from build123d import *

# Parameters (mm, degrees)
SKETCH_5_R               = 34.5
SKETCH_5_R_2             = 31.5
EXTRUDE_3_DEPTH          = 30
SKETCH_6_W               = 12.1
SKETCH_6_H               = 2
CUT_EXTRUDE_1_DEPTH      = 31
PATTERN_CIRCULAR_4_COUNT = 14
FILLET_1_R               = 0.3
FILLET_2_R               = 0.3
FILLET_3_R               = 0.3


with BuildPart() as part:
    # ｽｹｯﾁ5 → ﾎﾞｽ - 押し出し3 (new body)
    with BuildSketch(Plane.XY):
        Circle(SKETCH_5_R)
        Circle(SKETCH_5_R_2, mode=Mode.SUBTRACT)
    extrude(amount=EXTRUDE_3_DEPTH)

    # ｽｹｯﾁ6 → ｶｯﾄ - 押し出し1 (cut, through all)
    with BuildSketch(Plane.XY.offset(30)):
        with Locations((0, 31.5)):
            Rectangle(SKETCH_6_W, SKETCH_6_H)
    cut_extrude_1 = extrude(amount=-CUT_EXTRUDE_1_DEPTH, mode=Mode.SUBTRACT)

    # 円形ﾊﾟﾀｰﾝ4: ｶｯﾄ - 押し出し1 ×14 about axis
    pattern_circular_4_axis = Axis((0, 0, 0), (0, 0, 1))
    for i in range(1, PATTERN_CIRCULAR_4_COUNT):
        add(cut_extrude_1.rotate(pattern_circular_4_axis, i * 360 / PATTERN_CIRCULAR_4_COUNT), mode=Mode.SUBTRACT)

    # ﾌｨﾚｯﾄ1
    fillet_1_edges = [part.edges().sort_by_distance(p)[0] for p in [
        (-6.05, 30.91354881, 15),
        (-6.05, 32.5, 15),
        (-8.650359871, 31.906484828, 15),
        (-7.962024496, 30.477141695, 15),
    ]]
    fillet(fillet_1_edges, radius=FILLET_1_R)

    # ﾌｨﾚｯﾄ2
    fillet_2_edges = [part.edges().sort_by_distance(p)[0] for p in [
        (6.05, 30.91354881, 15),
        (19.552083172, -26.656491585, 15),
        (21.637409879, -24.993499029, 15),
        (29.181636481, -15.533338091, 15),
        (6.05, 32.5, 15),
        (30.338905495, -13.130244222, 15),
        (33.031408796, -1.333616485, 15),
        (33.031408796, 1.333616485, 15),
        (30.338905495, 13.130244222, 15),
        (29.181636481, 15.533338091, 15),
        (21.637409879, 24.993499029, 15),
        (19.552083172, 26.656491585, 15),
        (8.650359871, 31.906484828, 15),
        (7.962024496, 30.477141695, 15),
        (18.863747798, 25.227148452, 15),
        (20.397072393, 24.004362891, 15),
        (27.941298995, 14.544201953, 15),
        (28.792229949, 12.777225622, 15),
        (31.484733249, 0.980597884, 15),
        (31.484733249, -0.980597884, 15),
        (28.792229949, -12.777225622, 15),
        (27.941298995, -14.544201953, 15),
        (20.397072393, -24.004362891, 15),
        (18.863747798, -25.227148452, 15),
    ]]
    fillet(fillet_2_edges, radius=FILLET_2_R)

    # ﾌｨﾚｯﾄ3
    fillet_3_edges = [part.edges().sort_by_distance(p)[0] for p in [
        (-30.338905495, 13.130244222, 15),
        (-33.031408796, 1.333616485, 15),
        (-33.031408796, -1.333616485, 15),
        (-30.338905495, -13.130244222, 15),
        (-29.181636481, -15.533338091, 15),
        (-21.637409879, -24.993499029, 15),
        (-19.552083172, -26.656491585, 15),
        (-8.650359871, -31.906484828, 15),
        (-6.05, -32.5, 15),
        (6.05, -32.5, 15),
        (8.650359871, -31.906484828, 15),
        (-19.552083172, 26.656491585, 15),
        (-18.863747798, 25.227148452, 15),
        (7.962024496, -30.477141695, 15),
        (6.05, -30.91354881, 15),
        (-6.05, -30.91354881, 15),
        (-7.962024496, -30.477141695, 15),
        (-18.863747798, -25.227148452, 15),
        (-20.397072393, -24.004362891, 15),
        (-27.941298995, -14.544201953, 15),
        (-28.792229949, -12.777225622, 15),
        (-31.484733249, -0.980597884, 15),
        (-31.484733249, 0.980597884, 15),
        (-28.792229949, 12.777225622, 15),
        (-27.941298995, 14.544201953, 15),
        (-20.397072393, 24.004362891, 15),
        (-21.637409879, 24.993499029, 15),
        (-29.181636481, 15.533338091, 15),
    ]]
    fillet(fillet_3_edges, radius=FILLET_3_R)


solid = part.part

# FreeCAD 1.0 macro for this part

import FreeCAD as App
import Part
import Sketcher
from FreeCAD import Vector


def edges_at(feature, points):
    """Names of the edges that pass closest to the given points."""
    edges = feature.Shape.Edges
    near = lambda p: min(range(len(edges)), key=lambda i: edges[i].distToShape(Part.Vertex(*p))[0])
    return sorted({f"Edge{near(p) + 1}" for p in points})

doc = App.newDocument("Part")
body = doc.addObject("PartDesign::Body", "Body")

sketch1 = doc.addObject("Sketcher::SketchObject", "Sketch")
body.addObject(sketch1)
sketch1.AttachmentSupport = (doc.XY_Plane, [""])
sketch1.MapMode = "FlatFace"
sketch1.addGeometry([
    Part.Circle(Vector(0, 0, 0), Vector(0, 0, 1), 34.5),
    Part.Circle(Vector(0, 0, 0), Vector(0, 0, 1), 31.5),
], False)
sketch1.addConstraint([
    Sketcher.Constraint("Coincident", 0, 3, -1, 1),
    Sketcher.Constraint("Coincident", 1, 3, -1, 1),
    Sketcher.Constraint("Diameter", 0, 69.0),
    Sketcher.Constraint("Diameter", 1, 63.0),
])
pad1 = doc.addObject("PartDesign::Pad", "Pad")
body.addObject(pad1)
pad1.Profile = sketch1
pad1.Length = 30

sketch2 = doc.addObject("Sketcher::SketchObject", "Sketch001")
body.addObject(sketch2)
sketch2.AttachmentSupport = (doc.XY_Plane, [""])
sketch2.MapMode = "FlatFace"
sketch2.AttachmentOffset = App.Placement(Vector(0, 0, 30), App.Rotation())
sketch2.addGeometry([
    Part.LineSegment(Vector(-6.05, 32.5, 0), Vector(-6.05, 30.5, 0)),
    Part.LineSegment(Vector(-6.05, 30.5, 0), Vector(6.05, 30.5, 0)),
    Part.LineSegment(Vector(6.05, 30.5, 0), Vector(6.05, 32.5, 0)),
    Part.LineSegment(Vector(6.05, 32.5, 0), Vector(-6.05, 32.5, 0)),
], False)
sketch2.addConstraint([
    Sketcher.Constraint("Coincident", 0, 2, 1, 1),
    Sketcher.Constraint("Coincident", 1, 2, 2, 1),
    Sketcher.Constraint("Coincident", 2, 2, 3, 1),
    Sketcher.Constraint("Coincident", 3, 2, 0, 1),
    Sketcher.Constraint("Vertical", 0),
    Sketcher.Constraint("Horizontal", 1),
    Sketcher.Constraint("Vertical", 2),
    Sketcher.Constraint("Horizontal", 3),
    Sketcher.Constraint("DistanceY", 0, 2, 0, 1, 2.0),
    Sketcher.Constraint("DistanceX", 1, 1, 1, 2, 12.1),
    Sketcher.Constraint("DistanceY", -1, 1, 0, 2, 30.5),
    Sketcher.Constraint("DistanceX", 0, 2, -1, 1, 6.05),
])
pocket1 = doc.addObject("PartDesign::Pocket", "Pocket")
body.addObject(pocket1)
pocket1.Profile = sketch2
pocket1.Type = "ThroughAll"
doc.recompute()

polarpattern = doc.addObject("PartDesign::PolarPattern", "PolarPattern")
body.addObject(polarpattern)
polarpattern.Originals = [pocket1]
polarpattern.Axis = (doc.Z_Axis, [""])
polarpattern.Angle = 360
polarpattern.Occurrences = 14
body.Tip = polarpattern
doc.recompute()

fillet = doc.addObject("PartDesign::Fillet", "Fillet")
body.addObject(fillet)
fillet.Base = (polarpattern, edges_at(polarpattern, [
    (-6.05, 30.914, 15),
    (-6.05, 32.5, 15),
    (-8.65, 31.906, 15),
    (-7.962, 30.477, 15),
]))
fillet.Radius = 0.3
doc.recompute()

fillet2 = doc.addObject("PartDesign::Fillet", "Fillet001")
body.addObject(fillet2)
fillet2.Base = (fillet, edges_at(fillet, [
    (6.05, 30.914, 15),
    (19.552, -26.656, 15),
    (21.637, -24.993, 15),
    (29.182, -15.533, 15),
    (6.05, 32.5, 15),
    (30.339, -13.13, 15),
    (33.031, -1.334, 15),
    (33.031, 1.334, 15),
    (30.339, 13.13, 15),
    (29.182, 15.533, 15),
    (21.637, 24.993, 15),
    (19.552, 26.656, 15),
    (8.65, 31.906, 15),
    (7.962, 30.477, 15),
    (18.864, 25.227, 15),
    (20.397, 24.004, 15),
    (27.941, 14.544, 15),
    (28.792, 12.777, 15),
    (31.485, 0.981, 15),
    (31.485, -0.981, 15),
    (28.792, -12.777, 15),
    (27.941, -14.544, 15),
    (20.397, -24.004, 15),
    (18.864, -25.227, 15),
]))
fillet2.Radius = 0.3
doc.recompute()

fillet3 = doc.addObject("PartDesign::Fillet", "Fillet002")
body.addObject(fillet3)
fillet3.Base = (fillet2, edges_at(fillet2, [
    (-30.339, 13.13, 15),
    (-33.031, 1.334, 15),
    (-33.031, -1.334, 15),
    (-30.339, -13.13, 15),
    (-29.182, -15.533, 15),
    (-21.637, -24.993, 15),
    (-19.552, -26.656, 15),
    (-8.65, -31.906, 15),
    (-6.05, -32.5, 15),
    (6.05, -32.5, 15),
    (8.65, -31.906, 15),
    (-19.552, 26.656, 15),
    (-18.864, 25.227, 15),
    (7.962, -30.477, 15),
    (6.05, -30.914, 15),
    (-6.05, -30.914, 15),
    (-7.962, -30.477, 15),
    (-18.864, -25.227, 15),
    (-20.397, -24.004, 15),
    (-27.941, -14.544, 15),
    (-28.792, -12.777, 15),
    (-31.485, -0.981, 15),
    (-31.485, 0.981, 15),
    (-28.792, 12.777, 15),
    (-27.941, 14.544, 15),
    (-20.397, 24.004, 15),
    (-21.637, 24.993, 15),
    (-29.182, 15.533, 15),
]))
fillet3.Radius = 0.3

doc.recompute()
